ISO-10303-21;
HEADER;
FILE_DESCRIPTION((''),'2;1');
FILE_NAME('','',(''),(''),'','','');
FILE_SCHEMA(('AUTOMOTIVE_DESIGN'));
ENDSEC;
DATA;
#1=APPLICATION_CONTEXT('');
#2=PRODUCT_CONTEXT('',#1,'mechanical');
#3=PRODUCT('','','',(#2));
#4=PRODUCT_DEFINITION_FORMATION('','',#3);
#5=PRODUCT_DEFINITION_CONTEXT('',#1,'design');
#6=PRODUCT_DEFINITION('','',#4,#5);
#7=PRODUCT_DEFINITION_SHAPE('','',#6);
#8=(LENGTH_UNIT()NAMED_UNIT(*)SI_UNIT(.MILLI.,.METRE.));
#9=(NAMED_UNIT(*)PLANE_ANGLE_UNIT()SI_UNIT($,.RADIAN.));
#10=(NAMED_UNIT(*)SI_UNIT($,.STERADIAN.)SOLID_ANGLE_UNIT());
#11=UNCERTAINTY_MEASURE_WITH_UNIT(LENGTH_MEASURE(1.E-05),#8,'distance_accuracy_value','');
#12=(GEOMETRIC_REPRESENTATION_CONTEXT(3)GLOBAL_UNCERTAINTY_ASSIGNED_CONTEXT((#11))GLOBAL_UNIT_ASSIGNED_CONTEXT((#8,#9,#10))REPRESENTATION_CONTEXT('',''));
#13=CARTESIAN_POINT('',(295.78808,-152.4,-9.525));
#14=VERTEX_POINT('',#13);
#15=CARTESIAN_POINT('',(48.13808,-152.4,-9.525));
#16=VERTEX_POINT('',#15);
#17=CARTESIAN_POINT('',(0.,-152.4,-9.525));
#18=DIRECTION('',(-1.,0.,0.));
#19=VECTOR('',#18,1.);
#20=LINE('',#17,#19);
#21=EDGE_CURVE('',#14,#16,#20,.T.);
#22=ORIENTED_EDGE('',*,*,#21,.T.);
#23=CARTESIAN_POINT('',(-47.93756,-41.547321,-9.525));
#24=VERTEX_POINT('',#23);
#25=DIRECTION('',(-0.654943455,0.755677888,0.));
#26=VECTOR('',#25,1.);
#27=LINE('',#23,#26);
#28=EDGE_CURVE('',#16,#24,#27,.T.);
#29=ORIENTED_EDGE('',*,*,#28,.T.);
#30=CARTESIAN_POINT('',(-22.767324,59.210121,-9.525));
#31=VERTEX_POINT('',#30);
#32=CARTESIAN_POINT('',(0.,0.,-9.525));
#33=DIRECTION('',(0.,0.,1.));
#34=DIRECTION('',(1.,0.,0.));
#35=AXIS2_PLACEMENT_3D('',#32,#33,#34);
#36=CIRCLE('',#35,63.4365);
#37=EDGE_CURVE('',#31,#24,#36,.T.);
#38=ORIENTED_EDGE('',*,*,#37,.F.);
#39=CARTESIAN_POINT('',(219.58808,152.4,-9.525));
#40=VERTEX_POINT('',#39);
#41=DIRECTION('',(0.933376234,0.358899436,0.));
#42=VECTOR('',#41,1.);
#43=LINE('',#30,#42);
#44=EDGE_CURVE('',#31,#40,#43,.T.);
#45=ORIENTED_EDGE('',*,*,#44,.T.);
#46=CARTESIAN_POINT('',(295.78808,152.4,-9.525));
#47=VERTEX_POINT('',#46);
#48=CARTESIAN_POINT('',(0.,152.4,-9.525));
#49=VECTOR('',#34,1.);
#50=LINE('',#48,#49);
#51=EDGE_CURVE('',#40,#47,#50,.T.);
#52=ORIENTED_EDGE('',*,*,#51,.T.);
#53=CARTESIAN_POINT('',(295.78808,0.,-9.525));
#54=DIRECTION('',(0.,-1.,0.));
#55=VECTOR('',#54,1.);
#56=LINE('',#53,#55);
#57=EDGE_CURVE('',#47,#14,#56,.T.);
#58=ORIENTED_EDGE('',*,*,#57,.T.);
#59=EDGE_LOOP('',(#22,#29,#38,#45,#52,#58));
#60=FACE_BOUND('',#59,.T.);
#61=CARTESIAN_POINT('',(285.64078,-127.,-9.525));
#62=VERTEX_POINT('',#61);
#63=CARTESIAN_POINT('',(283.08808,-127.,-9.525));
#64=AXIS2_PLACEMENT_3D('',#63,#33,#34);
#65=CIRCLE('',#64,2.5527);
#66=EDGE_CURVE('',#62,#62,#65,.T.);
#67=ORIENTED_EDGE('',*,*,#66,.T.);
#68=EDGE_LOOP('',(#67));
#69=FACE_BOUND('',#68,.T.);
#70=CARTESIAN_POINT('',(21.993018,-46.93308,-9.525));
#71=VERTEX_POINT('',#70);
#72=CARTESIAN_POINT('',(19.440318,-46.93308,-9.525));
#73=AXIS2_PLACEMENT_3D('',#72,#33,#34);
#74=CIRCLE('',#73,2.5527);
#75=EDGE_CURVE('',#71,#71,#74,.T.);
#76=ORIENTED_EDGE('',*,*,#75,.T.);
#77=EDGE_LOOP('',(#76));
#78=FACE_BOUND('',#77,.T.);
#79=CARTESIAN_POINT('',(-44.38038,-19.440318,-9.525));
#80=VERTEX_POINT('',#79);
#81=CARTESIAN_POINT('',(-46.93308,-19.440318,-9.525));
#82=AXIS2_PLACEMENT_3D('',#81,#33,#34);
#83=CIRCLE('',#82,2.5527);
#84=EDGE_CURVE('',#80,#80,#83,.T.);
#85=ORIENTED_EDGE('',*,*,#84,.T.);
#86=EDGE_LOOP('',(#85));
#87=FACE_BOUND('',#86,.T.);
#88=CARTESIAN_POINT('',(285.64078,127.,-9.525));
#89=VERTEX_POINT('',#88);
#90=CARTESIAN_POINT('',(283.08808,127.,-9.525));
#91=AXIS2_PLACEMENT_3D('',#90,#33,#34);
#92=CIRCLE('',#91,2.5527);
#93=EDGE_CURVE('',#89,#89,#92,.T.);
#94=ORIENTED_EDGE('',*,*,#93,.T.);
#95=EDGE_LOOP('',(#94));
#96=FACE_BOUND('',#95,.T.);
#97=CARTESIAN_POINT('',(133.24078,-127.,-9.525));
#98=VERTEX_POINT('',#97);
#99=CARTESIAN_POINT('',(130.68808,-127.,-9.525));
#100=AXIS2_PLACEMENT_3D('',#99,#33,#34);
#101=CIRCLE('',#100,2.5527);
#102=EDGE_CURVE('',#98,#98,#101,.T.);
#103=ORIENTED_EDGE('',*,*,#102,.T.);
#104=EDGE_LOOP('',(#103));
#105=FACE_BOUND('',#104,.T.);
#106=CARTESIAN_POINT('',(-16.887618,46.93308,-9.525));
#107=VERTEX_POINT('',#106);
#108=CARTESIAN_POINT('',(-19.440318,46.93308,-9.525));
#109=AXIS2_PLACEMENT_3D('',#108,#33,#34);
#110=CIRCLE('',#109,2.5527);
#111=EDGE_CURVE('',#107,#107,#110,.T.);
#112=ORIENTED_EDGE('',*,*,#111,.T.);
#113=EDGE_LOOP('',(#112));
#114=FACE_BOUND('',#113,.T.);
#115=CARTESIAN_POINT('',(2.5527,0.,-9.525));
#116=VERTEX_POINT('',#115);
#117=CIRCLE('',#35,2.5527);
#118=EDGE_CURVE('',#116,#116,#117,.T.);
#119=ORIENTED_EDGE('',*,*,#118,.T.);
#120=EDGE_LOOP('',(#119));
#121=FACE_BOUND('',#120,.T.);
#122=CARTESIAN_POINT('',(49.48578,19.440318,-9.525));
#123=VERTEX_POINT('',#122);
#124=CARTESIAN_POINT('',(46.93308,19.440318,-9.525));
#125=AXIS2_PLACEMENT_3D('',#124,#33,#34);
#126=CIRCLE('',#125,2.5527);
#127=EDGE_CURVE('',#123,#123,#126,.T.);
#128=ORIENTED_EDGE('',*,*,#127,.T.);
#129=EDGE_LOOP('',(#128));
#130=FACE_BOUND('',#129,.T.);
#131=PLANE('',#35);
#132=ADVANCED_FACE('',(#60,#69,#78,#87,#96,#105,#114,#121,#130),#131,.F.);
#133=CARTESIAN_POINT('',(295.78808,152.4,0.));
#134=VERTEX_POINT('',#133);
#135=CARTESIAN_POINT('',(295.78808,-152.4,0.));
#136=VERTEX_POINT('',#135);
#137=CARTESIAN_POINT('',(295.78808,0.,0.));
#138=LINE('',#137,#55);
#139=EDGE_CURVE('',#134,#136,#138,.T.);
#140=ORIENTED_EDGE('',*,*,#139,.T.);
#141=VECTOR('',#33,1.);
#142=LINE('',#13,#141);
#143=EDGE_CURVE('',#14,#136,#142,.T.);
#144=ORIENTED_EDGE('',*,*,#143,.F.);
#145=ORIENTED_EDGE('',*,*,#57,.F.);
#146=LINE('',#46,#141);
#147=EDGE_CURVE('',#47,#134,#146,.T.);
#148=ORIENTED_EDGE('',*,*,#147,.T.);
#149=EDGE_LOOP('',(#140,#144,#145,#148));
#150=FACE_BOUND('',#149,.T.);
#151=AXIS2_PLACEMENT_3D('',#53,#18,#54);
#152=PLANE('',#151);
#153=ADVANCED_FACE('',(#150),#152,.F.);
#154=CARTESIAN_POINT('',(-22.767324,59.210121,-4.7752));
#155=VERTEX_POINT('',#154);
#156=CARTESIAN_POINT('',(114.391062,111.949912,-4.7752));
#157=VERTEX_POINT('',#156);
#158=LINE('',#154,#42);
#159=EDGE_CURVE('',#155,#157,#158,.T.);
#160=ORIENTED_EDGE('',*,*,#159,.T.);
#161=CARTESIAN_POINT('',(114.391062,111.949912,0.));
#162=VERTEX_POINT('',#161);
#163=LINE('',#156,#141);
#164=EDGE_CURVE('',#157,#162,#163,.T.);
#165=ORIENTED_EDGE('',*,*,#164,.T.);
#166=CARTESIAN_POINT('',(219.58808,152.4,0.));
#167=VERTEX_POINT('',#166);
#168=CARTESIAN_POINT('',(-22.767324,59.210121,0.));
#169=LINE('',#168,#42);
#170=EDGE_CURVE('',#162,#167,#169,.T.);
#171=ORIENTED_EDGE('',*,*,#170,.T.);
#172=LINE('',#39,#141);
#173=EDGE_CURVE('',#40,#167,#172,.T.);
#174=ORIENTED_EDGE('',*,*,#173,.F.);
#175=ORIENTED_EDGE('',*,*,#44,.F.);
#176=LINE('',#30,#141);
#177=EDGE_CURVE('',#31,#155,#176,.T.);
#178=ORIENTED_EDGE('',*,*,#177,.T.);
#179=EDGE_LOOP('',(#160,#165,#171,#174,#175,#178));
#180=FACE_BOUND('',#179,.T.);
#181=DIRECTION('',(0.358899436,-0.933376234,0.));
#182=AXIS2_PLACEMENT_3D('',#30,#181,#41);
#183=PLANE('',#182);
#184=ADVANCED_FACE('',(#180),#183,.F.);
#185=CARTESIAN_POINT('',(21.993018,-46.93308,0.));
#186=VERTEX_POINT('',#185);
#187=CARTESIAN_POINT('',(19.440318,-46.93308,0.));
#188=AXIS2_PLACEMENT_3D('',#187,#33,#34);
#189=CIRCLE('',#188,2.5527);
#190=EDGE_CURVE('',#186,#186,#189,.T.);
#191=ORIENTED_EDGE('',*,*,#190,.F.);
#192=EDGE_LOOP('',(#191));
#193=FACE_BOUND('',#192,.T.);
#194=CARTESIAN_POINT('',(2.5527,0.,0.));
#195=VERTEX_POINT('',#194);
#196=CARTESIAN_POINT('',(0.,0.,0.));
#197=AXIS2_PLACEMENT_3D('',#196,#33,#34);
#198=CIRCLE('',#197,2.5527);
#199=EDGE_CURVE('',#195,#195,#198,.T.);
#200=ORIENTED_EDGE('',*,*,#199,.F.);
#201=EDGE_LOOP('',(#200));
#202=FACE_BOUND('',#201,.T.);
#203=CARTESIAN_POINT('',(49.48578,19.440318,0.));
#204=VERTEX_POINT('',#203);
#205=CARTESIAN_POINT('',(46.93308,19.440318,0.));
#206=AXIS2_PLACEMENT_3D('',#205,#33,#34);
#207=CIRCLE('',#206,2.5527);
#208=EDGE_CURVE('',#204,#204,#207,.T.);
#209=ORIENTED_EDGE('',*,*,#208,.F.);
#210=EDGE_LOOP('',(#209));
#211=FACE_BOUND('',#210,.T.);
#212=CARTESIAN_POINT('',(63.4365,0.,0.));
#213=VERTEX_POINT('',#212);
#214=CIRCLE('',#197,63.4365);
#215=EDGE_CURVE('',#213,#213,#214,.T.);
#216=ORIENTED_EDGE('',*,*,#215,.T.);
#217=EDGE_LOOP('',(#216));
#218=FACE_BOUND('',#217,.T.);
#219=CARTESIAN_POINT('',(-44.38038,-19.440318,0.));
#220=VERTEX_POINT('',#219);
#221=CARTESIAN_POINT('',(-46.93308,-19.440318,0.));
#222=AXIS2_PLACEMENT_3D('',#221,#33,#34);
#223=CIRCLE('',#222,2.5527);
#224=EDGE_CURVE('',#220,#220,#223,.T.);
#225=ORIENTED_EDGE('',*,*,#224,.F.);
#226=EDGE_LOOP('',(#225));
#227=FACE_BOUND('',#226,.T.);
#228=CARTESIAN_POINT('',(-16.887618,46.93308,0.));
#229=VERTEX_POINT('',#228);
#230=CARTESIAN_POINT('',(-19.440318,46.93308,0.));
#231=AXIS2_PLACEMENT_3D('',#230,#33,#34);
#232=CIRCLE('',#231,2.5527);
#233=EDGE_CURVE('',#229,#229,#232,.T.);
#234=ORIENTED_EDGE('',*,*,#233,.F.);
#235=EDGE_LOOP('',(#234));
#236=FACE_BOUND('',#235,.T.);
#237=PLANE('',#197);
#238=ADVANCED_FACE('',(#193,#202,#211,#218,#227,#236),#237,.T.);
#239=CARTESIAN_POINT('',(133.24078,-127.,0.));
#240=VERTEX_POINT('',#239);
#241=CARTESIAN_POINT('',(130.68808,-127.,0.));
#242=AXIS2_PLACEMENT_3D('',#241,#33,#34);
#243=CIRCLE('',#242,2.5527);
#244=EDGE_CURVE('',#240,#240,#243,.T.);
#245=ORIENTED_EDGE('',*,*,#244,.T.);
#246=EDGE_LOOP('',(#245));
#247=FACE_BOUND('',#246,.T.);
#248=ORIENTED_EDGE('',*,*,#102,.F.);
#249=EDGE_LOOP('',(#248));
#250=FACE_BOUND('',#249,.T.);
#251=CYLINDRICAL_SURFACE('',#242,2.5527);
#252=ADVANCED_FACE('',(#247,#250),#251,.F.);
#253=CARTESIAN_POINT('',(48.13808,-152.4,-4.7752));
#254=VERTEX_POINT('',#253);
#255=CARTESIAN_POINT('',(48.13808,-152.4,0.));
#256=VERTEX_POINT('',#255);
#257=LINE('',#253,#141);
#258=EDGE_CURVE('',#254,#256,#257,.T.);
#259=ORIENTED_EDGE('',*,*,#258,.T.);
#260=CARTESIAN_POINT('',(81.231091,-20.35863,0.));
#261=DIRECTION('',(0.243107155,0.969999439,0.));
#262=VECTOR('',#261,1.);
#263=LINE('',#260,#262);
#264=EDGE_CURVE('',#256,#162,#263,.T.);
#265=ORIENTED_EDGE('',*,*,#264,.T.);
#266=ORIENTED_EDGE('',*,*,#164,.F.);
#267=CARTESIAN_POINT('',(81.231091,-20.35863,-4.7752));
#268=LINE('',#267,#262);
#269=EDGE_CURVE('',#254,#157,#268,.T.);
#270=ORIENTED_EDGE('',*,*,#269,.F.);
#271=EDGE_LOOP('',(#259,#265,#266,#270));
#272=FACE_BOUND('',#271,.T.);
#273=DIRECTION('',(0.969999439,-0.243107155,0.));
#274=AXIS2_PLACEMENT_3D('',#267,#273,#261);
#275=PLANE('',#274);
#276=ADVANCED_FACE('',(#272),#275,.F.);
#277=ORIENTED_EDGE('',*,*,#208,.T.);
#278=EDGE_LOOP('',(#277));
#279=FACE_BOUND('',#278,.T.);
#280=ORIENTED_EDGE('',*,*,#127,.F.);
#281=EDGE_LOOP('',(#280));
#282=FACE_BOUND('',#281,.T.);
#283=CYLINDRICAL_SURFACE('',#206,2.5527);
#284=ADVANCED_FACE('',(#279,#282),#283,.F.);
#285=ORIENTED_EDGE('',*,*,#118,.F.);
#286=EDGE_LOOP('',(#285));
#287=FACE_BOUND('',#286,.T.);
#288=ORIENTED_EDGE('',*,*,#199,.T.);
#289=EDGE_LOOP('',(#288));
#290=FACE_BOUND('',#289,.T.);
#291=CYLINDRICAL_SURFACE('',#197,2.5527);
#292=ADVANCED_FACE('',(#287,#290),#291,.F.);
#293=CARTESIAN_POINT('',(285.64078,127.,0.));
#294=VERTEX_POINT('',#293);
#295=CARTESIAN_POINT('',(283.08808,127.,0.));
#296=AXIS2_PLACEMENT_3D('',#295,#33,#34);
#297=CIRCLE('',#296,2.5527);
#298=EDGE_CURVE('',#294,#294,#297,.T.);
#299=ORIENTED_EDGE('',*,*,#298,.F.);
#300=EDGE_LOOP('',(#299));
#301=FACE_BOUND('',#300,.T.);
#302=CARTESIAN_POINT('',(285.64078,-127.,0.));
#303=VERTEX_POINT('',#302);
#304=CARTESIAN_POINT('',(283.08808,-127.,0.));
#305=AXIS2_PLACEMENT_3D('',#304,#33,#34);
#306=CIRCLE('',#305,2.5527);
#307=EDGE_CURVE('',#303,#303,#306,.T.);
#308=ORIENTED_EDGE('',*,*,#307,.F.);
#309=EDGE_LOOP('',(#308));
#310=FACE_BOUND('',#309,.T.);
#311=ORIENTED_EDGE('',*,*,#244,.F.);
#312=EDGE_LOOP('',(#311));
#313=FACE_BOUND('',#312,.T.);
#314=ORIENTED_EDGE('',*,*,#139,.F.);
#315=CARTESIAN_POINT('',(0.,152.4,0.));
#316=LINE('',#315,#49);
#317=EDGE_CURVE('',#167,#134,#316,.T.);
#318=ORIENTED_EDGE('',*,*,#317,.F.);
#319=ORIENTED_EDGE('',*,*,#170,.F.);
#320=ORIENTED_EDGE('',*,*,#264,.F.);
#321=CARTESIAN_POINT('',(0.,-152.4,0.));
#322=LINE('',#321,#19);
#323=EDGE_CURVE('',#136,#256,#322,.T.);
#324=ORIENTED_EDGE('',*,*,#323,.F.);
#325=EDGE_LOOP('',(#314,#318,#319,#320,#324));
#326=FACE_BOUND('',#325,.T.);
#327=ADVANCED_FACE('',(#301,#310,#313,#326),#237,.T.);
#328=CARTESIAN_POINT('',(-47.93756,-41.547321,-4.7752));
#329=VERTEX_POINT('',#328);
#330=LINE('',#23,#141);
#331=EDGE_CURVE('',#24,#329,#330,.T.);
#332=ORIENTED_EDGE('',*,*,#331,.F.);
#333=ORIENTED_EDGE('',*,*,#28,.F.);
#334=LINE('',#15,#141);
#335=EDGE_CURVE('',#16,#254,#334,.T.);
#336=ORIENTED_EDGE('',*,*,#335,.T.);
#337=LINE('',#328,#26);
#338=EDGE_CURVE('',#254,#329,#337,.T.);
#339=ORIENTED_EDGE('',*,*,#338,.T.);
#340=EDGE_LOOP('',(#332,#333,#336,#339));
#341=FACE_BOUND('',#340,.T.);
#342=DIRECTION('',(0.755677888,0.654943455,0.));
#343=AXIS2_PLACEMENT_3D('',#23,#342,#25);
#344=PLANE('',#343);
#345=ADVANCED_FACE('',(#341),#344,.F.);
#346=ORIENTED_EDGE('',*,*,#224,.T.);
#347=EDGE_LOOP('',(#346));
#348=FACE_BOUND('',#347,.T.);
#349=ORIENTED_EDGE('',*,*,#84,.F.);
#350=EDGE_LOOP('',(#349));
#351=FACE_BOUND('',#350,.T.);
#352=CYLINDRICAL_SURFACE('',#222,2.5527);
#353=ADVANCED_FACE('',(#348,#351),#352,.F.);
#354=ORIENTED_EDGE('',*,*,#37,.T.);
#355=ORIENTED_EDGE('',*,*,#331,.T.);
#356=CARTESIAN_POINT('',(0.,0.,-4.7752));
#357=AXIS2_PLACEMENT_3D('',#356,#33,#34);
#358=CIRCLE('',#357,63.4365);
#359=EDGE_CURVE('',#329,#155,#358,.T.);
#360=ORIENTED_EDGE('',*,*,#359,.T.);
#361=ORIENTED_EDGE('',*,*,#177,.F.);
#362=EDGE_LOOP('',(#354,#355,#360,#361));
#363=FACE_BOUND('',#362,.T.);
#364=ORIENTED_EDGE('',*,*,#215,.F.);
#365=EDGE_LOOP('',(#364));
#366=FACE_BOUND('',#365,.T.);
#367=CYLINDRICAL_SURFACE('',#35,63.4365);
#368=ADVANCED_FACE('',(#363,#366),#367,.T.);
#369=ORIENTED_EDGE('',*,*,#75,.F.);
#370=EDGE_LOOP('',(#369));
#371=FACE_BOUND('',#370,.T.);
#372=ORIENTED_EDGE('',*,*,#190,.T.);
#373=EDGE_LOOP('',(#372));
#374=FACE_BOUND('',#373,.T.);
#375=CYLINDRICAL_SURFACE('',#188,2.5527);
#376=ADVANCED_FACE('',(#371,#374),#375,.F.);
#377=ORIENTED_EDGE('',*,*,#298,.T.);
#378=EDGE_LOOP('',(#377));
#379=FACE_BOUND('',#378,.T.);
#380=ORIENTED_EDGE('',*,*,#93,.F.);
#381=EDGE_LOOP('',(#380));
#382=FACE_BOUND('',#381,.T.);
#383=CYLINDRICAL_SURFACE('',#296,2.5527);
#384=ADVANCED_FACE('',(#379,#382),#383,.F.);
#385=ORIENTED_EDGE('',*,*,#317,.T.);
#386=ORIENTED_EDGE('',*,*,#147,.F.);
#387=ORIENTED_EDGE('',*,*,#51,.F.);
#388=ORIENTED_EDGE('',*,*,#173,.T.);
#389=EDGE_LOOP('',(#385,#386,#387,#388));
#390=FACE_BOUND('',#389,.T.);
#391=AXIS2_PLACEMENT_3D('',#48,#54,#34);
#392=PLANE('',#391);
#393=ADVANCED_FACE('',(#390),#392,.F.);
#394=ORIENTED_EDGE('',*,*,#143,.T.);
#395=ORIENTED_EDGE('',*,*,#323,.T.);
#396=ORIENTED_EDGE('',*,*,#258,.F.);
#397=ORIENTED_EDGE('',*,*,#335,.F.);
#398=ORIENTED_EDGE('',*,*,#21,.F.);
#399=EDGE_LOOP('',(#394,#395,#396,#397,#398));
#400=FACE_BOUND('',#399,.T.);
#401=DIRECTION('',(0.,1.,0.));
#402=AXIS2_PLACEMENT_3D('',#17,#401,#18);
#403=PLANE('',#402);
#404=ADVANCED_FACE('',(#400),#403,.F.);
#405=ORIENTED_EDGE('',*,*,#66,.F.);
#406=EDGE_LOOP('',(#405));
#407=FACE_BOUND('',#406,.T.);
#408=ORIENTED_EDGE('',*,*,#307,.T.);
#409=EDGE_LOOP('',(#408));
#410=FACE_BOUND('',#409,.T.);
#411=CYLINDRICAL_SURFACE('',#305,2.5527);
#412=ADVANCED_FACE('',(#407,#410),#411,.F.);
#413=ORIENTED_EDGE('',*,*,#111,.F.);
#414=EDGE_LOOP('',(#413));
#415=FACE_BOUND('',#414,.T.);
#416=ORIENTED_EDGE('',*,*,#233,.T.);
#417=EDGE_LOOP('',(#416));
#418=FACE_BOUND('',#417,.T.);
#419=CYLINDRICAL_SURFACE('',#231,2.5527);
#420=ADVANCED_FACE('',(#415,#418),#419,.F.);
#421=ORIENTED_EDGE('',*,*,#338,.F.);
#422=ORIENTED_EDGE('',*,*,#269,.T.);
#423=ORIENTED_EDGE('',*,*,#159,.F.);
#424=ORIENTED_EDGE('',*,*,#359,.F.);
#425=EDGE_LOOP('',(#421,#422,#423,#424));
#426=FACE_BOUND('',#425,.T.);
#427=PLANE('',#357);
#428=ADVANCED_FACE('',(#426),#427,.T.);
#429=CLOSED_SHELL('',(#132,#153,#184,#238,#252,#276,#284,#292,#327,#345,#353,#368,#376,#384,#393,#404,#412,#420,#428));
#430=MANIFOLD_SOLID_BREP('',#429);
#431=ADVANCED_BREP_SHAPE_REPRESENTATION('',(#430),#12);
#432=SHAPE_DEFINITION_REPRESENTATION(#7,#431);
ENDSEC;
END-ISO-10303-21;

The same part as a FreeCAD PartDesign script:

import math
import FreeCAD as App
import Part
import Sketcher

V = App.Vector
Q = App.Units.Quantity

doc = App.newDocument("Part")
body = doc.addObject("PartDesign::Body", "Body")

# Sketch on XY plane
sketch1 = body.newObject("Sketcher::SketchObject", "Sketch")
sketch1.AttachmentSupport = (doc.getObject("XY_Plane"), [""])
sketch1.MapMode = "FlatFace"
sketch1.addGeometry(Part.ArcOfCircle(Part.Circle(V(0, 0, 0), V(0, 0, 1), 63), math.radians(111), math.radians(221)), False)
sketch1.addGeometry(Part.LineSegment(V(-48, -42, 0), V(48, -152, 0)), False)
sketch1.addGeometry(Part.LineSegment(V(48, -152, 0), V(296, -152, 0)), False)
sketch1.addGeometry(Part.LineSegment(V(296, -152, 0), V(296, 152, 0)), False)
sketch1.addGeometry(Part.LineSegment(V(296, 152, 0), V(220, 152, 0)), False)
sketch1.addGeometry(Part.LineSegment(V(220, 152, 0), V(-23, 59, 0)), False)
sketch1.addConstraint(Sketcher.Constraint("Tangent", 0, 2, 1, 1))
sketch1.addConstraint(Sketcher.Constraint("Coincident", 1, 2, 2, 1))
sketch1.addConstraint(Sketcher.Constraint("Coincident", 2, 2, 3, 1))
sketch1.addConstraint(Sketcher.Constraint("Coincident", 3, 2, 4, 1))
sketch1.addConstraint(Sketcher.Constraint("Coincident", 4, 2, 5, 1))
sketch1.addConstraint(Sketcher.Constraint("Tangent", 5, 2, 0, 1))
sketch1.addConstraint(Sketcher.Constraint("Horizontal", 2))
sketch1.addConstraint(Sketcher.Constraint("Vertical", 3))
sketch1.addConstraint(Sketcher.Constraint("Horizontal", 4))
sketch1.addConstraint(Sketcher.Constraint("Coincident", 0, 3, -1, 1))
sketch1.addConstraint(Sketcher.Constraint("DistanceX", 4, 2, 4, 1, Q("3 in")))
sketch1.addConstraint(Sketcher.Constraint("DistanceY", 3, 1, 3, 2, Q("12 in")))
sketch1.addConstraint(Sketcher.Constraint("DistanceY", 1, 2, -1, 1, Q("6 in")))
sketch1.addConstraint(Sketcher.Constraint("DistanceX", 2, 1, 2, 2, Q("9.75 in")))
sketch1.addConstraint(Sketcher.Constraint("Radius", 0, Q("2.4975 in")))
sketch1.addConstraint(Sketcher.Constraint("DistanceX", -1, 1, 1, 2, Q("1.8952 in")))
pad1 = body.newObject("PartDesign::Pad", "Pad")
pad1.Profile = sketch1
pad1.Length = Q("0.375 in")
pad1.Reversed = True

# Sketch on XY plane
sketch2 = body.newObject("Sketcher::SketchObject", "Sketch001")
sketch2.AttachmentSupport = (doc.getObject("XY_Plane"), [""])
sketch2.MapMode = "FlatFace"
sketch2.addGeometry(Part.LineSegment(V(114, 112, 0), V(-23, 59, 0)), False)
sketch2.addGeometry(Part.ArcOfCircle(Part.Circle(V(0, 0, 0), V(0, 0, 1), 63), math.radians(0), math.radians(111)), False)
sketch2.addGeometry(Part.ArcOfCircle(Part.Circle(V(0, 0, 0), V(0, 0, 1), 63), math.radians(-139), math.radians(0)), False)
sketch2.addGeometry(Part.LineSegment(V(-48, -42, 0), V(48, -152, 0)), False)
sketch2.addGeometry(Part.LineSegment(V(48, -152, 0), V(114, 112, 0)), False)
sketch2.addConstraint(Sketcher.Constraint("Tangent", 0, 2, 1, 2))
sketch2.addConstraint(Sketcher.Constraint("Tangent", 1, 1, 2, 2))
sketch2.addConstraint(Sketcher.Constraint("Tangent", 2, 1, 3, 1))
sketch2.addConstraint(Sketcher.Constraint("Coincident", 3, 2, 4, 1))
sketch2.addConstraint(Sketcher.Constraint("Coincident", 4, 2, 0, 1))
sketch2.addConstraint(Sketcher.Constraint("Coincident", 1, 3, -1, 1))
sketch2.addConstraint(Sketcher.Constraint("Equal", 1, 2))
sketch2.addConstraint(Sketcher.Constraint("PointOnObject", 1, 1, -1))
sketch2.addConstraint(Sketcher.Constraint("DistanceY", 3, 2, -1, 1, Q("6 in")))
sketch2.addConstraint(Sketcher.Constraint("Radius", 1, Q("2.4975 in")))
sketch2.addConstraint(Sketcher.Constraint("Angle", 4, Q("75.93 deg")))
sketch2.addConstraint(Sketcher.Constraint("DistanceX", -1, 1, 3, 2, Q("1.8952 in")))
sketch2.addConstraint(Sketcher.Constraint("Distance", 0, 146.948659))
pocket1 = body.newObject("PartDesign::Pocket", "Pocket")
pocket1.Profile = sketch2
pocket1.Length = Q("0.188 in")

# Sketch on XY plane
sketch3 = body.newObject("Sketcher::SketchObject", "Sketch002")
sketch3.AttachmentSupport = (doc.getObject("XY_Plane"), [""])
sketch3.MapMode = "FlatFace"
sketch3.addGeometry(Part.Circle(V(283.1, 127, 0), V(0, 0, 1), 2.6), False)
sketch3.addGeometry(Part.Circle(V(283.1, -127, 0), V(0, 0, 1), 2.6), False)
sketch3.addGeometry(Part.Circle(V(130.7, -127, 0), V(0, 0, 1), 2.6), False)
sketch3.addGeometry(Part.Circle(V(46.9, 19.4, 0), V(0, 0, 1), 2.6), False)
sketch3.addGeometry(Part.Circle(V(19.4, -46.9, 0), V(0, 0, 1), 2.6), False)
sketch3.addGeometry(Part.Circle(V(-46.9, -19.4, 0), V(0, 0, 1), 2.6), False)
sketch3.addGeometry(Part.Circle(V(-19.4, 46.9, 0), V(0, 0, 1), 2.6), False)
sketch3.addGeometry(Part.Circle(V(0, 0, 0), V(0, 0, 1), 2.6), False)
sketch3.addConstraint(Sketcher.Constraint("Coincident", 7, 3, -1, 1))
sketch3.addConstraint(Sketcher.Constraint("Equal", 0, 1))
sketch3.addConstraint(Sketcher.Constraint("Equal", 1, 2))
sketch3.addConstraint(Sketcher.Constraint("Equal", 2, 3))
sketch3.addConstraint(Sketcher.Constraint("Equal", 3, 4))
sketch3.addConstraint(Sketcher.Constraint("Equal", 4, 5))
sketch3.addConstraint(Sketcher.Constraint("Equal", 5, 6))
sketch3.addConstraint(Sketcher.Constraint("Equal", 6, 7))
sketch3.addConstraint(Sketcher.Constraint("Symmetric", 3, 3, 5, 3, -1, 1))
sketch3.addConstraint(Sketcher.Constraint("Symmetric", 4, 3, 6, 3, -1, 1))
sketch3.addConstraint(Sketcher.Constraint("Symmetric", 0, 3, 1, 3, -1))
sketch3.addConstraint(Sketcher.Constraint("Horizontal", 1, 3, 2, 3))
sketch3.addConstraint(Sketcher.Constraint("Diameter", 0, Q("0.201 in")))
sketch3.addConstraint(Sketcher.Constraint("DistanceY", -1, 1, 0, 3, Q("5 in")))
sketch3.addConstraint(Sketcher.Constraint("DistanceX", 2, 3, 1, 3, Q("6 in")))
sketch3.addConstraint(Sketcher.Constraint("DistanceX", -1, 1, 0, 3, Q("11.1452 in")))
sketch3.addConstraint(Sketcher.Constraint("DistanceX", 3, 3, 2, 3, 83.755))
sketch3.addConstraint(Sketcher.Constraint("DistanceY", 4, 3, 3, 3, 66.373399))
sketch3.addConstraint(Sketcher.Constraint("DistanceX", 5, 3, 4, 3, 66.373399))
sketch3.addConstraint(Sketcher.Constraint("DistanceY", -1, 1, 3, 3, 19.440318))
doc.recompute()
hole = body.newObject("PartDesign::Hole", "Hole")
hole.Profile = sketch3
hole.ThreadType = "None"
hole.Diameter = Q("0.201 in")
hole.DepthType = "ThroughAll"

doc.recompute()
